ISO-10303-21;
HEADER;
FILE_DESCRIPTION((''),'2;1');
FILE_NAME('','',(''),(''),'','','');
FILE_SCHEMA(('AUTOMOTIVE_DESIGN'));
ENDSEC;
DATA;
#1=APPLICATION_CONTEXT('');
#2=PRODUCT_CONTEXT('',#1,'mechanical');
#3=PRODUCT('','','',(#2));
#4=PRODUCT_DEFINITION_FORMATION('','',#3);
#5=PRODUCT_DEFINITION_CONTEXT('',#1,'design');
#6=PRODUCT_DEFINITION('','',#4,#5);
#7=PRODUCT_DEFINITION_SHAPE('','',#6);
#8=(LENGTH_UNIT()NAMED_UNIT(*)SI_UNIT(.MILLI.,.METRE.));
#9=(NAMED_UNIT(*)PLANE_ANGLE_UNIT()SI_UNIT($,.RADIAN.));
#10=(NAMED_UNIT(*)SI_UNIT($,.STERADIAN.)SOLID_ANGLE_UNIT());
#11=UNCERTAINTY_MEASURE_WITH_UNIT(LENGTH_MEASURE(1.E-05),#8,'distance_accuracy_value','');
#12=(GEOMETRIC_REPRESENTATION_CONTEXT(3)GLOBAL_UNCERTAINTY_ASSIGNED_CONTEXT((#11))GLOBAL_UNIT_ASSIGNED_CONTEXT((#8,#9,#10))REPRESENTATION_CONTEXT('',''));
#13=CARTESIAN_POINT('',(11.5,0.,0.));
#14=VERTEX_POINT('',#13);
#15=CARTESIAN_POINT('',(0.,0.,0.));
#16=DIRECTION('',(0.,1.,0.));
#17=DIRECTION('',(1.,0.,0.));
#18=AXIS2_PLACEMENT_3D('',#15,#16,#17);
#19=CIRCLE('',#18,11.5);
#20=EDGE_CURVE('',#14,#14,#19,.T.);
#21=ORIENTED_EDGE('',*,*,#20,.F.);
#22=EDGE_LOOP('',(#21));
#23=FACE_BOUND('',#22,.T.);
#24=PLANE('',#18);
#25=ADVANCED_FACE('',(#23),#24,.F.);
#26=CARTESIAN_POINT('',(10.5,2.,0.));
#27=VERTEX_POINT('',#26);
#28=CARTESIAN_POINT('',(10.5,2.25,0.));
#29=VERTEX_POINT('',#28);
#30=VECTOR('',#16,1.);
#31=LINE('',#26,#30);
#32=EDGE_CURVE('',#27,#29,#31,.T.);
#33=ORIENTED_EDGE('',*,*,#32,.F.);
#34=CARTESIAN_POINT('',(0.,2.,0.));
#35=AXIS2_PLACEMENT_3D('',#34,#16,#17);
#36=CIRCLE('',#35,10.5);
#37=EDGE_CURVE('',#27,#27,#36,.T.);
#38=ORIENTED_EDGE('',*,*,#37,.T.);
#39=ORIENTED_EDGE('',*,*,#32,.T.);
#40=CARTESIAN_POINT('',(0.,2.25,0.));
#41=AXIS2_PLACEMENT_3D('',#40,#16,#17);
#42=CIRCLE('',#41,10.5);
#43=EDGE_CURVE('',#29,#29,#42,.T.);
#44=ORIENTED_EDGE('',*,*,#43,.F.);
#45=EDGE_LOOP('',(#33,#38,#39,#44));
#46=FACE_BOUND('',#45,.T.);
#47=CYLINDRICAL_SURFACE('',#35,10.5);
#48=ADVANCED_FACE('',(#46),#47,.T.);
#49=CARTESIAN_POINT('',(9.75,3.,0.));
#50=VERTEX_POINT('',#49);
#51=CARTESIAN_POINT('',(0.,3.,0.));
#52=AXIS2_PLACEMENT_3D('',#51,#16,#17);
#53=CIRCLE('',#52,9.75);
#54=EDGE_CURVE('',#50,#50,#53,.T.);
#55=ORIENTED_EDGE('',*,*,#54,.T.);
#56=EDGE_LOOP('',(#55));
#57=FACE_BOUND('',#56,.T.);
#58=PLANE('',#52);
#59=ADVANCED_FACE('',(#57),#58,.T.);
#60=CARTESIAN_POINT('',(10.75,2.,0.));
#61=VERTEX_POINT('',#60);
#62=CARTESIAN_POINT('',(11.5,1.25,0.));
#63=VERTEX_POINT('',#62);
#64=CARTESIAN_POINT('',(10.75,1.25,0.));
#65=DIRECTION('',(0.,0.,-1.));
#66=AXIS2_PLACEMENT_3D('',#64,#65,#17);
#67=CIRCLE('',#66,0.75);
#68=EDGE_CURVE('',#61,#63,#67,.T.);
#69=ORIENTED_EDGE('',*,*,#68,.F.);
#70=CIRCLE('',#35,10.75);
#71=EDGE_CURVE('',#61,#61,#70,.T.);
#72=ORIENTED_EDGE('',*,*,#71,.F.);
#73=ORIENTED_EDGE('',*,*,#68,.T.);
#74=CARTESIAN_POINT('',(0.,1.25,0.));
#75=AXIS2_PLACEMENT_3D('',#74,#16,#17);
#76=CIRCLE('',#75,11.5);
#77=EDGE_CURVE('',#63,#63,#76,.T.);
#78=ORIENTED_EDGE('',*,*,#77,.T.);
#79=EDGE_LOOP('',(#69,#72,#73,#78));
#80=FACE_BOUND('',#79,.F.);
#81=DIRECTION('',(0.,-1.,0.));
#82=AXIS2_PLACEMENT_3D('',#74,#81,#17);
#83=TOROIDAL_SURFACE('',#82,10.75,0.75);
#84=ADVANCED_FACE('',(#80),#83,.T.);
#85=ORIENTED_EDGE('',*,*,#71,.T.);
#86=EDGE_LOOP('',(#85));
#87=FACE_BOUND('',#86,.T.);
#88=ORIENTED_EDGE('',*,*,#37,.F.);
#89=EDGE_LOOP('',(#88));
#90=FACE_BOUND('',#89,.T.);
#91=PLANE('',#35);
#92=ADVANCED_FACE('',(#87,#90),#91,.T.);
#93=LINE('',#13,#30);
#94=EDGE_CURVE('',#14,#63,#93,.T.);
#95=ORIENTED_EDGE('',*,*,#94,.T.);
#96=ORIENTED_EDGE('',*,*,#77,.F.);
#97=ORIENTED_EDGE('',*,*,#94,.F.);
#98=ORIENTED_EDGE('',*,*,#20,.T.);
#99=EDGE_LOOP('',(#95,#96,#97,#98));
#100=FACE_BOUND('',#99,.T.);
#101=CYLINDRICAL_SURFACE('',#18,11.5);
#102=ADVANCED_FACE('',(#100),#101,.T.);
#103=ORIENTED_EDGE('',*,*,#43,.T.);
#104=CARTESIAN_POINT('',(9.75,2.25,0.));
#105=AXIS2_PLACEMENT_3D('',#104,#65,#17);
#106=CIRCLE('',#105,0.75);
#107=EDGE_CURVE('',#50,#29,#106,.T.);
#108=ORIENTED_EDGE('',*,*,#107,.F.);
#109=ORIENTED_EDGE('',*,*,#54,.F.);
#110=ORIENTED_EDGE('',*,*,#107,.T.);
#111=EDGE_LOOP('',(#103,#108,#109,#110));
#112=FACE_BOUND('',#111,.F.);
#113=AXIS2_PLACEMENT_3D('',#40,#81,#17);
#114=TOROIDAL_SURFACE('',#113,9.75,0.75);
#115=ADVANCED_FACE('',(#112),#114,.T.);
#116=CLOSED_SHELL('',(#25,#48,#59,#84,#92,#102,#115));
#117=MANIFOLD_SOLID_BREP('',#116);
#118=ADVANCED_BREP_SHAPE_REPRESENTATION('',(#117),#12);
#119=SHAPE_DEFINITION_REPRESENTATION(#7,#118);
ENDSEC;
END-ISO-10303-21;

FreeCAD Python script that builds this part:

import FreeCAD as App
import Part
import Sketcher


def edges_at(feature, points):
    """Names of the edges that pass closest to the given points."""
    edges = feature.Shape.Edges
    near = lambda p: min(range(len(edges)), key=lambda i: edges[i].distToShape(Part.Vertex(*p))[0])
    return sorted({f"Edge{near(p) + 1}" for p in points})

doc = App.newDocument("Part")
body = doc.addObject("PartDesign::Body", "Body")

sketch1 = body.newObject("Sketcher::SketchObject", "Sketch")
sketch1.AttachmentSupport = (doc.getObject("XY_Plane"), [""])
sketch1.MapMode = "FlatFace"
sketch1.addGeometry(Part.LineSegment(App.Vector(0, 3, 0), App.Vector(0, 0, 0)), False)
sketch1.addGeometry(Part.LineSegment(App.Vector(0, 0, 0), App.Vector(11.5, 0, 0)), False)
sketch1.addGeometry(Part.LineSegment(App.Vector(11.5, 0, 0), App.Vector(11.5, 2, 0)), False)
sketch1.addGeometry(Part.LineSegment(App.Vector(11.5, 2, 0), App.Vector(10.5, 2, 0)), False)
sketch1.addGeometry(Part.LineSegment(App.Vector(10.5, 2, 0), App.Vector(10.5, 3, 0)), False)
sketch1.addGeometry(Part.LineSegment(App.Vector(10.5, 3, 0), App.Vector(0, 3, 0)), False)
sketch1.addConstraint(Sketcher.Constraint("Coincident", 0, 2, 1, 1))
sketch1.addConstraint(Sketcher.Constraint("Coincident", 1, 2, 2, 1))
sketch1.addConstraint(Sketcher.Constraint("Coincident", 2, 2, 3, 1))
sketch1.addConstraint(Sketcher.Constraint("Coincident", 3, 2, 4, 1))
sketch1.addConstraint(Sketcher.Constraint("Coincident", 4, 2, 5, 1))
sketch1.addConstraint(Sketcher.Constraint("Coincident", 5, 2, 0, 1))
sketch1.addConstraint(Sketcher.Constraint("Vertical", 0))
sketch1.addConstraint(Sketcher.Constraint("Horizontal", 1))
sketch1.addConstraint(Sketcher.Constraint("Vertical", 2))
sketch1.addConstraint(Sketcher.Constraint("Horizontal", 3))
sketch1.addConstraint(Sketcher.Constraint("Vertical", 4))
sketch1.addConstraint(Sketcher.Constraint("Horizontal", 5))
sketch1.addConstraint(Sketcher.Constraint("Coincident", 0, 2, -1, 1))
sketch1.addConstraint(Sketcher.Constraint("Equal", 3, 4))
sketch1.addConstraint(Sketcher.Constraint("DistanceX", 3, 2, 3, 1, 1.0))
sketch1.addConstraint(Sketcher.Constraint("DistanceY", 2, 1, 2, 2, 2.0))
sketch1.addConstraint(Sketcher.Constraint("DistanceX", 1, 1, 1, 2, 11.5))
revolution = body.newObject("PartDesign::Revolution", "Revolution")
revolution.Profile = sketch1
revolution.ReferenceAxis = (sketch1, ["V_Axis"])
revolution.Angle = 360
doc.recompute()

fillet = body.newObject("PartDesign::Fillet", "Fillet")
fillet.Base = (revolution, edges_at(revolution, [(-11.5, 2, 0), (-10.5, 3, 0)]))
fillet.Radius = 0.75

doc.recompute()
